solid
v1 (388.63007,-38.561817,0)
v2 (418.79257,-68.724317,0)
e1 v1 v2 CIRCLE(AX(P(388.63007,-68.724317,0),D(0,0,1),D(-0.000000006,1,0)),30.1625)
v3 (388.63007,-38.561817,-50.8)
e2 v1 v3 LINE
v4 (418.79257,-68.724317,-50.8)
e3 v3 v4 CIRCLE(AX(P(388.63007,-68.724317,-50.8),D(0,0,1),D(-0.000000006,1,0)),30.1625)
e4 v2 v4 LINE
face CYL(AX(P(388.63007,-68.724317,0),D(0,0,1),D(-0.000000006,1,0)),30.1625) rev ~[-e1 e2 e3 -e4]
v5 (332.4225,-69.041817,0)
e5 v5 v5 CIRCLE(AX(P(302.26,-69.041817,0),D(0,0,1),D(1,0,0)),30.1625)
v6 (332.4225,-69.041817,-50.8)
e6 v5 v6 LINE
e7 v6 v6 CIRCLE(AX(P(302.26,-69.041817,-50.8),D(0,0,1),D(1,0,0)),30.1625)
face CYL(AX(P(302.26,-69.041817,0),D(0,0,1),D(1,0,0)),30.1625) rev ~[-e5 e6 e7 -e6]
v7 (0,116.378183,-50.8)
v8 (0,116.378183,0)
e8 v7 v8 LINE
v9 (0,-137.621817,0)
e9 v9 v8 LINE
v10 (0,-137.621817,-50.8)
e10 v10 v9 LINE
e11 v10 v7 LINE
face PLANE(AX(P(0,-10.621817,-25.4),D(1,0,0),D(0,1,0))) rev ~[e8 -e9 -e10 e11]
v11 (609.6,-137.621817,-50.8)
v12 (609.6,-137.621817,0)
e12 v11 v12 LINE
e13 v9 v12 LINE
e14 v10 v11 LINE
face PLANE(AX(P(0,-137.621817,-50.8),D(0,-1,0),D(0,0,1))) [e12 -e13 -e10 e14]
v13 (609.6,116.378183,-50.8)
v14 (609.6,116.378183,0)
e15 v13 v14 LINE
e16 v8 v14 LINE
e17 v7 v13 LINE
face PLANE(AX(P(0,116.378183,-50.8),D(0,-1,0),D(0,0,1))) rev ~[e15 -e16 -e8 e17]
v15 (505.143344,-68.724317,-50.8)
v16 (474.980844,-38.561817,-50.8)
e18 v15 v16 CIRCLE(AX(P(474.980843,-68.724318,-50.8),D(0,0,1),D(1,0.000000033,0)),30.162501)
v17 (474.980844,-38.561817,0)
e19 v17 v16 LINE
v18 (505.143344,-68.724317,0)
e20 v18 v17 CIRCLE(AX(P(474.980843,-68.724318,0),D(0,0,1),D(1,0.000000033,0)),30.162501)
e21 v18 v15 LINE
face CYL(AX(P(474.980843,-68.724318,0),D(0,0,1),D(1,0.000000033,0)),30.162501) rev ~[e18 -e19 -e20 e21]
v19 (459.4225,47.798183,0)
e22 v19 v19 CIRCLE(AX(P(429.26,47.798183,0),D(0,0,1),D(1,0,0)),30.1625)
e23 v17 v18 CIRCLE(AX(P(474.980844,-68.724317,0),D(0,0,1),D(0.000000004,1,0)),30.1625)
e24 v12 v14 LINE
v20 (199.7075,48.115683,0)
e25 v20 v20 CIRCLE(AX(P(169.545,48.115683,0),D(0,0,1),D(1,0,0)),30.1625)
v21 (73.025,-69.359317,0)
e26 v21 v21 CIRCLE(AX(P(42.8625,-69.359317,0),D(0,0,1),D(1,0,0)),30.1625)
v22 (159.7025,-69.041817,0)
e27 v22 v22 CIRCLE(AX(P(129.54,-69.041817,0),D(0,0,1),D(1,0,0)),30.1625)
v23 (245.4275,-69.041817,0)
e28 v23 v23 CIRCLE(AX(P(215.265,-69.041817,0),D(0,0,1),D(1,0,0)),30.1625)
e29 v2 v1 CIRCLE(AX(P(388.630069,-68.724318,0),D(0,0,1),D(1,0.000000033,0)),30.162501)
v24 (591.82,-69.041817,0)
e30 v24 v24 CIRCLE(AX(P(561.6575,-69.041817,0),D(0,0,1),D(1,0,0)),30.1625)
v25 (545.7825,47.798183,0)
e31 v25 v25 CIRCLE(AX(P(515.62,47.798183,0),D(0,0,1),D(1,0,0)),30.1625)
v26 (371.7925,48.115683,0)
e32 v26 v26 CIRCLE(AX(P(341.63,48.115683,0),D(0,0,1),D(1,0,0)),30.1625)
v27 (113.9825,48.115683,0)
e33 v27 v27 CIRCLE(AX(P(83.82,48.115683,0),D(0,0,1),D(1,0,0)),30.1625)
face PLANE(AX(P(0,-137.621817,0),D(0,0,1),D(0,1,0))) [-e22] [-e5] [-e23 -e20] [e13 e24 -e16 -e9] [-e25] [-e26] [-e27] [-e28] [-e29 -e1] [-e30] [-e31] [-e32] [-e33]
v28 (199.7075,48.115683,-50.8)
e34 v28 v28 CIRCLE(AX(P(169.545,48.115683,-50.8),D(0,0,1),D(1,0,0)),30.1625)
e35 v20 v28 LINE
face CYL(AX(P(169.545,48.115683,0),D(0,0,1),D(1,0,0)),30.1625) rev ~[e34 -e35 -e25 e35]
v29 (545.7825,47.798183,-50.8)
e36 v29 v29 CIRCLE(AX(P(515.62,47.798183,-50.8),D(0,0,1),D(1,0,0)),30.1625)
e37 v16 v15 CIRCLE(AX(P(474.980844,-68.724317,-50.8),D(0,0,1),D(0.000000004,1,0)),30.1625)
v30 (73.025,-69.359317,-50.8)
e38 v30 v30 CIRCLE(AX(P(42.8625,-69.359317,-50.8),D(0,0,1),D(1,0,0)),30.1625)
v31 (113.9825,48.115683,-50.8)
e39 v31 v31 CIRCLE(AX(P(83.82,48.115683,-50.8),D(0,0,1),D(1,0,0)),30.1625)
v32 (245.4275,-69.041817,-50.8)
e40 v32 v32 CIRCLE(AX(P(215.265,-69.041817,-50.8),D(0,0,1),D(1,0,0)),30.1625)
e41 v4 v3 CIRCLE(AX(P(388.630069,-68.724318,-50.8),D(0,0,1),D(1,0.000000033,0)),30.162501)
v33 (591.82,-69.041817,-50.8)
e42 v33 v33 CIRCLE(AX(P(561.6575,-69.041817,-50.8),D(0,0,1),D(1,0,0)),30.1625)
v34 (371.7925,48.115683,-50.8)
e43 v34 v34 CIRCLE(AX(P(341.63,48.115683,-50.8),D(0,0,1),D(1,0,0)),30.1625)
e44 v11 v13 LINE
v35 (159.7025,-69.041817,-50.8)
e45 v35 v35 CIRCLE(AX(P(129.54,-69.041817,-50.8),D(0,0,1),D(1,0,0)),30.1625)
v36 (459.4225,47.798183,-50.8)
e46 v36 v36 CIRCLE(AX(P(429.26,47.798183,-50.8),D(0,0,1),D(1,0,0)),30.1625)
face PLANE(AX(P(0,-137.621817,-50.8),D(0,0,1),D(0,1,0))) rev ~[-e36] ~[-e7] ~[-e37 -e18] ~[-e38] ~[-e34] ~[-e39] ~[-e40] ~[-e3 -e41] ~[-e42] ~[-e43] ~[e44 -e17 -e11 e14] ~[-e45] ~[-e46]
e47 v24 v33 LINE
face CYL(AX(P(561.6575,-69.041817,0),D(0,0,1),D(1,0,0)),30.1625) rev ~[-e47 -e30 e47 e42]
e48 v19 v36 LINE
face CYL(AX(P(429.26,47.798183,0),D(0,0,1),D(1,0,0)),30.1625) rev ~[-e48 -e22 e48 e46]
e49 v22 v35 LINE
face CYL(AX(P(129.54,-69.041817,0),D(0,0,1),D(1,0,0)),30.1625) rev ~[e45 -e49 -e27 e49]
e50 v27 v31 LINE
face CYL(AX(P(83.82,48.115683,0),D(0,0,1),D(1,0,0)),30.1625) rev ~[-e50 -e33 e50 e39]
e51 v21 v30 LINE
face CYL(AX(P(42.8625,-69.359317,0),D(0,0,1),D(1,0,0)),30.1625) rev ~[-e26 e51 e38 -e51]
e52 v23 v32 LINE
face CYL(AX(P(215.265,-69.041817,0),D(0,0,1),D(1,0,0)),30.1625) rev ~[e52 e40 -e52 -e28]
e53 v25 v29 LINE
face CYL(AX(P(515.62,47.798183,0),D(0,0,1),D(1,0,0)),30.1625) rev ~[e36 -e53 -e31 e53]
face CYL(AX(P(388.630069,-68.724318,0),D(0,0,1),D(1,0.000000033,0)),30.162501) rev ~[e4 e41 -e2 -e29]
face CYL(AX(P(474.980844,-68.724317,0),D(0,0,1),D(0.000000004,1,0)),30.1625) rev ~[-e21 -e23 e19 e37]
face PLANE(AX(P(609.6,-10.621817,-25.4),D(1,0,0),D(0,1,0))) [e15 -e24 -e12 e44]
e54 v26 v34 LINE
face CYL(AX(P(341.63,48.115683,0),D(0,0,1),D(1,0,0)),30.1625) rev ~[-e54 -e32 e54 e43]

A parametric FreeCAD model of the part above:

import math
import FreeCAD as App
import Part
import Sketcher

V = App.Vector
Q = App.Units.Quantity

doc = App.newDocument("Part")
body = doc.addObject("PartDesign::Body", "Body")

sketch1 = body.newObject("Sketcher::SketchObject", "Sketch")
sketch1.AttachmentSupport = (doc.getObject("YZ_Plane"), [""])
sketch1.MapMode = "FlatFace"
sketch1.addGeometry(Part.LineSegment(V(-137.621817, 0, 0), V(-137.621817, -50.8, 0)), False)
sketch1.addGeometry(Part.LineSegment(V(-137.621817, -50.8, 0), V(116.378183, -50.8, 0)), False)
sketch1.addGeometry(Part.LineSegment(V(116.378183, -50.8, 0), V(116.378183, 0, 0)), False)
sketch1.addGeometry(Part.LineSegment(V(116.378183, 0, 0), V(-137.621817, 0, 0)), False)
sketch1.addConstraint(Sketcher.Constraint("Coincident", 0, 2, 1, 1))
sketch1.addConstraint(Sketcher.Constraint("Coincident", 1, 2, 2, 1))
sketch1.addConstraint(Sketcher.Constraint("Coincident", 2, 2, 3, 1))
sketch1.addConstraint(Sketcher.Constraint("Coincident", 3, 2, 0, 1))
sketch1.addConstraint(Sketcher.Constraint("Vertical", 0))
sketch1.addConstraint(Sketcher.Constraint("Horizontal", 1))
sketch1.addConstraint(Sketcher.Constraint("Vertical", 2))
sketch1.addConstraint(Sketcher.Constraint("Horizontal", 3))
sketch1.addConstraint(Sketcher.Constraint("PointOnObject", 2, 2, -1))
sketch1.addConstraint(Sketcher.Constraint("DistanceX", 1, 1, 1, 2, Q("10 in")))
sketch1.addConstraint(Sketcher.Constraint("DistanceY", 0, 2, 0, 1, Q("2 in")))
sketch1.addConstraint(Sketcher.Constraint("DistanceX", 0, 2, -1, 1, Q("137.621817 mm")))
pad1 = body.newObject("PartDesign::Pad", "Pad")
pad1.Profile = sketch1
pad1.Length = Q("24 in")

sketch2 = body.newObject("Sketcher::SketchObject", "Sketch001")
sketch2.AttachmentSupport = (doc.getObject("XY_Plane"), [""])
sketch2.MapMode = "FlatFace"
sketch2.addGeometry(Part.Circle(V(42.8625, -69.359317, 0), V(0, 0, 1), 30.1625), False)
sketch2.addGeometry(Part.Circle(V(83.82, 48.115683, 0), V(0, 0, 1), 30.1625), False)
sketch2.addGeometry(Part.Circle(V(129.54, -69.041817, 0), V(0, 0, 1), 30.1625), False)
sketch2.addGeometry(Part.Circle(V(169.545, 48.115683, 0), V(0, 0, 1), 30.1625), False)
sketch2.addGeometry(Part.Circle(V(215.265, -69.041817, 0), V(0, 0, 1), 30.1625), False)
sketch2.addGeometry(Part.Circle(V(302.26, -69.041817, 0), V(0, 0, 1), 30.1625), False)
sketch2.addGeometry(Part.ArcOfCircle(Part.Circle(V(388.63007, -68.724317, 0), V(0, 0, 1), 30.1625), math.radians(90), math.radians(360)), False)
sketch2.addGeometry(Part.ArcOfCircle(Part.Circle(V(388.630069, -68.724318, 0), V(0, 0, 1), 30.162501), math.radians(0.000002), math.radians(89.999998)), False)
sketch2.addGeometry(Part.ArcOfCircle(Part.Circle(V(474.980843, -68.724318, 0), V(0, 0, 1), 30.162501), math.radians(0.000002), math.radians(89.999998)), False)
sketch2.addGeometry(Part.ArcOfCircle(Part.Circle(V(474.980844, -68.724317, 0), V(0, 0, 1), 30.1625), math.radians(90), math.radians(360)), False)
sketch2.addGeometry(Part.Circle(V(341.63, 48.115683, 0), V(0, 0, 1), 30.1625), False)
sketch2.addGeometry(Part.Circle(V(429.26, 47.798183, 0), V(0, 0, 1), 30.1625), False)
sketch2.addGeometry(Part.Circle(V(515.62, 47.798183, 0), V(0, 0, 1), 30.1625), False)
sketch2.addGeometry(Part.Circle(V(561.6575, -69.041817, 0), V(0, 0, 1), 30.1625), False)
sketch2.addConstraint(Sketcher.Constraint("Tangent", 6, 1, 7, 2))
sketch2.addConstraint(Sketcher.Constraint("Coincident", 7, 1, 6, 2))
sketch2.addConstraint(Sketcher.Constraint("Tangent", 8, 1, 9, 2))
sketch2.addConstraint(Sketcher.Constraint("Coincident", 9, 1, 8, 2))
sketch2.addConstraint(Sketcher.Constraint("Equal", 0, 1))
sketch2.addConstraint(Sketcher.Constraint("Equal", 1, 2))
sketch2.addConstraint(Sketcher.Constraint("Equal", 2, 3))
sketch2.addConstraint(Sketcher.Constraint("Equal", 3, 4))
sketch2.addConstraint(Sketcher.Constraint("Equal", 4, 5))
sketch2.addConstraint(Sketcher.Constraint("Equal", 5, 6))
sketch2.addConstraint(Sketcher.Constraint("Equal", 7, 8))
sketch2.addConstraint(Sketcher.Constraint("Equal", 9, 10))
sketch2.addConstraint(Sketcher.Constraint("Equal", 10, 11))
sketch2.addConstraint(Sketcher.Constraint("Equal", 11, 12))
sketch2.addConstraint(Sketcher.Constraint("Equal", 12, 13))
sketch2.addConstraint(Sketcher.Constraint("Horizontal", 1, 3, 3, 3))
sketch2.addConstraint(Sketcher.Constraint("Horizontal", 2, 3, 4, 3))
sketch2.addConstraint(Sketcher.Constraint("Horizontal", 4, 3, 5, 3))
sketch2.addConstraint(Sketcher.Constraint("Horizontal", 7, 3, 8, 3))
sketch2.addConstraint(Sketcher.Constraint("Horizontal", 3, 3, 10, 3))
sketch2.addConstraint(Sketcher.Constraint("Horizontal", 11, 3, 12, 3))
sketch2.addConstraint(Sketcher.Constraint("Horizontal", 5, 3, 13, 3))
sketch2.addConstraint(Sketcher.Constraint("Horizontal", 9, 3, 7, 1))
sketch2.addConstraint(Sketcher.Constraint("Horizontal", 7, 1, 8, 1))
sketch2.addConstraint(Sketcher.Constraint("Vertical", 7, 3, 6, 1))
sketch2.addConstraint(Sketcher.Constraint("Vertical", 8, 3, 9, 1))
sketch2.addConstraint(Sketcher.Constraint("Diameter", 0, Q("2.375 in")))
sketch2.addConstraint(Sketcher.Constraint("DistanceX", -1, 1, 1, 3, Q("3.3 in")))
sketch2.addConstraint(Sketcher.Constraint("DistanceX", -1, 1, 2, 3, Q("5.1 in")))
sketch2.addConstraint(Sketcher.Constraint("DistanceX", -1, 1, 5, 3, Q("11.9 in")))
sketch2.addConstraint(Sketcher.Constraint("DistanceX", -1, 1, 11, 3, Q("16.9 in")))
sketch2.addConstraint(Sketcher.Constraint("DistanceX", -1, 1, 12, 3, Q("20.3 in")))
sketch2.addConstraint(Sketcher.Constraint("DistanceX", 3, 3, 4, 3, Q("1.8 in")))
sketch2.addConstraint(Sketcher.Constraint("DistanceY", 6, 3, 3, 3, Q("4.6 in")))
sketch2.addConstraint(Sketcher.Constraint("DistanceY", 13, 3, 12, 3, Q("4.6 in")))
sketch2.addConstraint(Sketcher.Constraint("DistanceY", 5, 3, 6, 1, Q("1.2 in")))
sketch2.addConstraint(Sketcher.Constraint("DistanceX", -1, 1, 10, 3, Q("13.45 in")))
sketch2.addConstraint(Sketcher.Constraint("DistanceX", -1, 1, 0, 3, Q("1.6875 in")))
sketch2.addConstraint(Sketcher.Constraint("DistanceX", -1, 1, 3, 3, Q("6.675 in")))
sketch2.addConstraint(Sketcher.Constraint("DistanceY", 0, 3, 1, 3, Q("4.625 in")))
sketch2.addConstraint(Sketcher.Constraint("DistanceX", 12, 3, 13, 3, Q("1.8125 in")))
sketch2.addConstraint(Sketcher.Constraint("DistanceX", -1, 1, 6, 3, Q("388.63007 mm")))
sketch2.addConstraint(Sketcher.Constraint("DistanceY", 0, 3, -1, 1, Q("69.359317 mm")))
sketch2.addConstraint(Sketcher.Constraint("DistanceX", -1, 1, 8, 3, Q("474.980843 mm")))
pocket1 = body.newObject("PartDesign::Pocket", "Pocket")
pocket1.Profile = sketch2
pocket1.Length = 107.192695

doc.recompute()
